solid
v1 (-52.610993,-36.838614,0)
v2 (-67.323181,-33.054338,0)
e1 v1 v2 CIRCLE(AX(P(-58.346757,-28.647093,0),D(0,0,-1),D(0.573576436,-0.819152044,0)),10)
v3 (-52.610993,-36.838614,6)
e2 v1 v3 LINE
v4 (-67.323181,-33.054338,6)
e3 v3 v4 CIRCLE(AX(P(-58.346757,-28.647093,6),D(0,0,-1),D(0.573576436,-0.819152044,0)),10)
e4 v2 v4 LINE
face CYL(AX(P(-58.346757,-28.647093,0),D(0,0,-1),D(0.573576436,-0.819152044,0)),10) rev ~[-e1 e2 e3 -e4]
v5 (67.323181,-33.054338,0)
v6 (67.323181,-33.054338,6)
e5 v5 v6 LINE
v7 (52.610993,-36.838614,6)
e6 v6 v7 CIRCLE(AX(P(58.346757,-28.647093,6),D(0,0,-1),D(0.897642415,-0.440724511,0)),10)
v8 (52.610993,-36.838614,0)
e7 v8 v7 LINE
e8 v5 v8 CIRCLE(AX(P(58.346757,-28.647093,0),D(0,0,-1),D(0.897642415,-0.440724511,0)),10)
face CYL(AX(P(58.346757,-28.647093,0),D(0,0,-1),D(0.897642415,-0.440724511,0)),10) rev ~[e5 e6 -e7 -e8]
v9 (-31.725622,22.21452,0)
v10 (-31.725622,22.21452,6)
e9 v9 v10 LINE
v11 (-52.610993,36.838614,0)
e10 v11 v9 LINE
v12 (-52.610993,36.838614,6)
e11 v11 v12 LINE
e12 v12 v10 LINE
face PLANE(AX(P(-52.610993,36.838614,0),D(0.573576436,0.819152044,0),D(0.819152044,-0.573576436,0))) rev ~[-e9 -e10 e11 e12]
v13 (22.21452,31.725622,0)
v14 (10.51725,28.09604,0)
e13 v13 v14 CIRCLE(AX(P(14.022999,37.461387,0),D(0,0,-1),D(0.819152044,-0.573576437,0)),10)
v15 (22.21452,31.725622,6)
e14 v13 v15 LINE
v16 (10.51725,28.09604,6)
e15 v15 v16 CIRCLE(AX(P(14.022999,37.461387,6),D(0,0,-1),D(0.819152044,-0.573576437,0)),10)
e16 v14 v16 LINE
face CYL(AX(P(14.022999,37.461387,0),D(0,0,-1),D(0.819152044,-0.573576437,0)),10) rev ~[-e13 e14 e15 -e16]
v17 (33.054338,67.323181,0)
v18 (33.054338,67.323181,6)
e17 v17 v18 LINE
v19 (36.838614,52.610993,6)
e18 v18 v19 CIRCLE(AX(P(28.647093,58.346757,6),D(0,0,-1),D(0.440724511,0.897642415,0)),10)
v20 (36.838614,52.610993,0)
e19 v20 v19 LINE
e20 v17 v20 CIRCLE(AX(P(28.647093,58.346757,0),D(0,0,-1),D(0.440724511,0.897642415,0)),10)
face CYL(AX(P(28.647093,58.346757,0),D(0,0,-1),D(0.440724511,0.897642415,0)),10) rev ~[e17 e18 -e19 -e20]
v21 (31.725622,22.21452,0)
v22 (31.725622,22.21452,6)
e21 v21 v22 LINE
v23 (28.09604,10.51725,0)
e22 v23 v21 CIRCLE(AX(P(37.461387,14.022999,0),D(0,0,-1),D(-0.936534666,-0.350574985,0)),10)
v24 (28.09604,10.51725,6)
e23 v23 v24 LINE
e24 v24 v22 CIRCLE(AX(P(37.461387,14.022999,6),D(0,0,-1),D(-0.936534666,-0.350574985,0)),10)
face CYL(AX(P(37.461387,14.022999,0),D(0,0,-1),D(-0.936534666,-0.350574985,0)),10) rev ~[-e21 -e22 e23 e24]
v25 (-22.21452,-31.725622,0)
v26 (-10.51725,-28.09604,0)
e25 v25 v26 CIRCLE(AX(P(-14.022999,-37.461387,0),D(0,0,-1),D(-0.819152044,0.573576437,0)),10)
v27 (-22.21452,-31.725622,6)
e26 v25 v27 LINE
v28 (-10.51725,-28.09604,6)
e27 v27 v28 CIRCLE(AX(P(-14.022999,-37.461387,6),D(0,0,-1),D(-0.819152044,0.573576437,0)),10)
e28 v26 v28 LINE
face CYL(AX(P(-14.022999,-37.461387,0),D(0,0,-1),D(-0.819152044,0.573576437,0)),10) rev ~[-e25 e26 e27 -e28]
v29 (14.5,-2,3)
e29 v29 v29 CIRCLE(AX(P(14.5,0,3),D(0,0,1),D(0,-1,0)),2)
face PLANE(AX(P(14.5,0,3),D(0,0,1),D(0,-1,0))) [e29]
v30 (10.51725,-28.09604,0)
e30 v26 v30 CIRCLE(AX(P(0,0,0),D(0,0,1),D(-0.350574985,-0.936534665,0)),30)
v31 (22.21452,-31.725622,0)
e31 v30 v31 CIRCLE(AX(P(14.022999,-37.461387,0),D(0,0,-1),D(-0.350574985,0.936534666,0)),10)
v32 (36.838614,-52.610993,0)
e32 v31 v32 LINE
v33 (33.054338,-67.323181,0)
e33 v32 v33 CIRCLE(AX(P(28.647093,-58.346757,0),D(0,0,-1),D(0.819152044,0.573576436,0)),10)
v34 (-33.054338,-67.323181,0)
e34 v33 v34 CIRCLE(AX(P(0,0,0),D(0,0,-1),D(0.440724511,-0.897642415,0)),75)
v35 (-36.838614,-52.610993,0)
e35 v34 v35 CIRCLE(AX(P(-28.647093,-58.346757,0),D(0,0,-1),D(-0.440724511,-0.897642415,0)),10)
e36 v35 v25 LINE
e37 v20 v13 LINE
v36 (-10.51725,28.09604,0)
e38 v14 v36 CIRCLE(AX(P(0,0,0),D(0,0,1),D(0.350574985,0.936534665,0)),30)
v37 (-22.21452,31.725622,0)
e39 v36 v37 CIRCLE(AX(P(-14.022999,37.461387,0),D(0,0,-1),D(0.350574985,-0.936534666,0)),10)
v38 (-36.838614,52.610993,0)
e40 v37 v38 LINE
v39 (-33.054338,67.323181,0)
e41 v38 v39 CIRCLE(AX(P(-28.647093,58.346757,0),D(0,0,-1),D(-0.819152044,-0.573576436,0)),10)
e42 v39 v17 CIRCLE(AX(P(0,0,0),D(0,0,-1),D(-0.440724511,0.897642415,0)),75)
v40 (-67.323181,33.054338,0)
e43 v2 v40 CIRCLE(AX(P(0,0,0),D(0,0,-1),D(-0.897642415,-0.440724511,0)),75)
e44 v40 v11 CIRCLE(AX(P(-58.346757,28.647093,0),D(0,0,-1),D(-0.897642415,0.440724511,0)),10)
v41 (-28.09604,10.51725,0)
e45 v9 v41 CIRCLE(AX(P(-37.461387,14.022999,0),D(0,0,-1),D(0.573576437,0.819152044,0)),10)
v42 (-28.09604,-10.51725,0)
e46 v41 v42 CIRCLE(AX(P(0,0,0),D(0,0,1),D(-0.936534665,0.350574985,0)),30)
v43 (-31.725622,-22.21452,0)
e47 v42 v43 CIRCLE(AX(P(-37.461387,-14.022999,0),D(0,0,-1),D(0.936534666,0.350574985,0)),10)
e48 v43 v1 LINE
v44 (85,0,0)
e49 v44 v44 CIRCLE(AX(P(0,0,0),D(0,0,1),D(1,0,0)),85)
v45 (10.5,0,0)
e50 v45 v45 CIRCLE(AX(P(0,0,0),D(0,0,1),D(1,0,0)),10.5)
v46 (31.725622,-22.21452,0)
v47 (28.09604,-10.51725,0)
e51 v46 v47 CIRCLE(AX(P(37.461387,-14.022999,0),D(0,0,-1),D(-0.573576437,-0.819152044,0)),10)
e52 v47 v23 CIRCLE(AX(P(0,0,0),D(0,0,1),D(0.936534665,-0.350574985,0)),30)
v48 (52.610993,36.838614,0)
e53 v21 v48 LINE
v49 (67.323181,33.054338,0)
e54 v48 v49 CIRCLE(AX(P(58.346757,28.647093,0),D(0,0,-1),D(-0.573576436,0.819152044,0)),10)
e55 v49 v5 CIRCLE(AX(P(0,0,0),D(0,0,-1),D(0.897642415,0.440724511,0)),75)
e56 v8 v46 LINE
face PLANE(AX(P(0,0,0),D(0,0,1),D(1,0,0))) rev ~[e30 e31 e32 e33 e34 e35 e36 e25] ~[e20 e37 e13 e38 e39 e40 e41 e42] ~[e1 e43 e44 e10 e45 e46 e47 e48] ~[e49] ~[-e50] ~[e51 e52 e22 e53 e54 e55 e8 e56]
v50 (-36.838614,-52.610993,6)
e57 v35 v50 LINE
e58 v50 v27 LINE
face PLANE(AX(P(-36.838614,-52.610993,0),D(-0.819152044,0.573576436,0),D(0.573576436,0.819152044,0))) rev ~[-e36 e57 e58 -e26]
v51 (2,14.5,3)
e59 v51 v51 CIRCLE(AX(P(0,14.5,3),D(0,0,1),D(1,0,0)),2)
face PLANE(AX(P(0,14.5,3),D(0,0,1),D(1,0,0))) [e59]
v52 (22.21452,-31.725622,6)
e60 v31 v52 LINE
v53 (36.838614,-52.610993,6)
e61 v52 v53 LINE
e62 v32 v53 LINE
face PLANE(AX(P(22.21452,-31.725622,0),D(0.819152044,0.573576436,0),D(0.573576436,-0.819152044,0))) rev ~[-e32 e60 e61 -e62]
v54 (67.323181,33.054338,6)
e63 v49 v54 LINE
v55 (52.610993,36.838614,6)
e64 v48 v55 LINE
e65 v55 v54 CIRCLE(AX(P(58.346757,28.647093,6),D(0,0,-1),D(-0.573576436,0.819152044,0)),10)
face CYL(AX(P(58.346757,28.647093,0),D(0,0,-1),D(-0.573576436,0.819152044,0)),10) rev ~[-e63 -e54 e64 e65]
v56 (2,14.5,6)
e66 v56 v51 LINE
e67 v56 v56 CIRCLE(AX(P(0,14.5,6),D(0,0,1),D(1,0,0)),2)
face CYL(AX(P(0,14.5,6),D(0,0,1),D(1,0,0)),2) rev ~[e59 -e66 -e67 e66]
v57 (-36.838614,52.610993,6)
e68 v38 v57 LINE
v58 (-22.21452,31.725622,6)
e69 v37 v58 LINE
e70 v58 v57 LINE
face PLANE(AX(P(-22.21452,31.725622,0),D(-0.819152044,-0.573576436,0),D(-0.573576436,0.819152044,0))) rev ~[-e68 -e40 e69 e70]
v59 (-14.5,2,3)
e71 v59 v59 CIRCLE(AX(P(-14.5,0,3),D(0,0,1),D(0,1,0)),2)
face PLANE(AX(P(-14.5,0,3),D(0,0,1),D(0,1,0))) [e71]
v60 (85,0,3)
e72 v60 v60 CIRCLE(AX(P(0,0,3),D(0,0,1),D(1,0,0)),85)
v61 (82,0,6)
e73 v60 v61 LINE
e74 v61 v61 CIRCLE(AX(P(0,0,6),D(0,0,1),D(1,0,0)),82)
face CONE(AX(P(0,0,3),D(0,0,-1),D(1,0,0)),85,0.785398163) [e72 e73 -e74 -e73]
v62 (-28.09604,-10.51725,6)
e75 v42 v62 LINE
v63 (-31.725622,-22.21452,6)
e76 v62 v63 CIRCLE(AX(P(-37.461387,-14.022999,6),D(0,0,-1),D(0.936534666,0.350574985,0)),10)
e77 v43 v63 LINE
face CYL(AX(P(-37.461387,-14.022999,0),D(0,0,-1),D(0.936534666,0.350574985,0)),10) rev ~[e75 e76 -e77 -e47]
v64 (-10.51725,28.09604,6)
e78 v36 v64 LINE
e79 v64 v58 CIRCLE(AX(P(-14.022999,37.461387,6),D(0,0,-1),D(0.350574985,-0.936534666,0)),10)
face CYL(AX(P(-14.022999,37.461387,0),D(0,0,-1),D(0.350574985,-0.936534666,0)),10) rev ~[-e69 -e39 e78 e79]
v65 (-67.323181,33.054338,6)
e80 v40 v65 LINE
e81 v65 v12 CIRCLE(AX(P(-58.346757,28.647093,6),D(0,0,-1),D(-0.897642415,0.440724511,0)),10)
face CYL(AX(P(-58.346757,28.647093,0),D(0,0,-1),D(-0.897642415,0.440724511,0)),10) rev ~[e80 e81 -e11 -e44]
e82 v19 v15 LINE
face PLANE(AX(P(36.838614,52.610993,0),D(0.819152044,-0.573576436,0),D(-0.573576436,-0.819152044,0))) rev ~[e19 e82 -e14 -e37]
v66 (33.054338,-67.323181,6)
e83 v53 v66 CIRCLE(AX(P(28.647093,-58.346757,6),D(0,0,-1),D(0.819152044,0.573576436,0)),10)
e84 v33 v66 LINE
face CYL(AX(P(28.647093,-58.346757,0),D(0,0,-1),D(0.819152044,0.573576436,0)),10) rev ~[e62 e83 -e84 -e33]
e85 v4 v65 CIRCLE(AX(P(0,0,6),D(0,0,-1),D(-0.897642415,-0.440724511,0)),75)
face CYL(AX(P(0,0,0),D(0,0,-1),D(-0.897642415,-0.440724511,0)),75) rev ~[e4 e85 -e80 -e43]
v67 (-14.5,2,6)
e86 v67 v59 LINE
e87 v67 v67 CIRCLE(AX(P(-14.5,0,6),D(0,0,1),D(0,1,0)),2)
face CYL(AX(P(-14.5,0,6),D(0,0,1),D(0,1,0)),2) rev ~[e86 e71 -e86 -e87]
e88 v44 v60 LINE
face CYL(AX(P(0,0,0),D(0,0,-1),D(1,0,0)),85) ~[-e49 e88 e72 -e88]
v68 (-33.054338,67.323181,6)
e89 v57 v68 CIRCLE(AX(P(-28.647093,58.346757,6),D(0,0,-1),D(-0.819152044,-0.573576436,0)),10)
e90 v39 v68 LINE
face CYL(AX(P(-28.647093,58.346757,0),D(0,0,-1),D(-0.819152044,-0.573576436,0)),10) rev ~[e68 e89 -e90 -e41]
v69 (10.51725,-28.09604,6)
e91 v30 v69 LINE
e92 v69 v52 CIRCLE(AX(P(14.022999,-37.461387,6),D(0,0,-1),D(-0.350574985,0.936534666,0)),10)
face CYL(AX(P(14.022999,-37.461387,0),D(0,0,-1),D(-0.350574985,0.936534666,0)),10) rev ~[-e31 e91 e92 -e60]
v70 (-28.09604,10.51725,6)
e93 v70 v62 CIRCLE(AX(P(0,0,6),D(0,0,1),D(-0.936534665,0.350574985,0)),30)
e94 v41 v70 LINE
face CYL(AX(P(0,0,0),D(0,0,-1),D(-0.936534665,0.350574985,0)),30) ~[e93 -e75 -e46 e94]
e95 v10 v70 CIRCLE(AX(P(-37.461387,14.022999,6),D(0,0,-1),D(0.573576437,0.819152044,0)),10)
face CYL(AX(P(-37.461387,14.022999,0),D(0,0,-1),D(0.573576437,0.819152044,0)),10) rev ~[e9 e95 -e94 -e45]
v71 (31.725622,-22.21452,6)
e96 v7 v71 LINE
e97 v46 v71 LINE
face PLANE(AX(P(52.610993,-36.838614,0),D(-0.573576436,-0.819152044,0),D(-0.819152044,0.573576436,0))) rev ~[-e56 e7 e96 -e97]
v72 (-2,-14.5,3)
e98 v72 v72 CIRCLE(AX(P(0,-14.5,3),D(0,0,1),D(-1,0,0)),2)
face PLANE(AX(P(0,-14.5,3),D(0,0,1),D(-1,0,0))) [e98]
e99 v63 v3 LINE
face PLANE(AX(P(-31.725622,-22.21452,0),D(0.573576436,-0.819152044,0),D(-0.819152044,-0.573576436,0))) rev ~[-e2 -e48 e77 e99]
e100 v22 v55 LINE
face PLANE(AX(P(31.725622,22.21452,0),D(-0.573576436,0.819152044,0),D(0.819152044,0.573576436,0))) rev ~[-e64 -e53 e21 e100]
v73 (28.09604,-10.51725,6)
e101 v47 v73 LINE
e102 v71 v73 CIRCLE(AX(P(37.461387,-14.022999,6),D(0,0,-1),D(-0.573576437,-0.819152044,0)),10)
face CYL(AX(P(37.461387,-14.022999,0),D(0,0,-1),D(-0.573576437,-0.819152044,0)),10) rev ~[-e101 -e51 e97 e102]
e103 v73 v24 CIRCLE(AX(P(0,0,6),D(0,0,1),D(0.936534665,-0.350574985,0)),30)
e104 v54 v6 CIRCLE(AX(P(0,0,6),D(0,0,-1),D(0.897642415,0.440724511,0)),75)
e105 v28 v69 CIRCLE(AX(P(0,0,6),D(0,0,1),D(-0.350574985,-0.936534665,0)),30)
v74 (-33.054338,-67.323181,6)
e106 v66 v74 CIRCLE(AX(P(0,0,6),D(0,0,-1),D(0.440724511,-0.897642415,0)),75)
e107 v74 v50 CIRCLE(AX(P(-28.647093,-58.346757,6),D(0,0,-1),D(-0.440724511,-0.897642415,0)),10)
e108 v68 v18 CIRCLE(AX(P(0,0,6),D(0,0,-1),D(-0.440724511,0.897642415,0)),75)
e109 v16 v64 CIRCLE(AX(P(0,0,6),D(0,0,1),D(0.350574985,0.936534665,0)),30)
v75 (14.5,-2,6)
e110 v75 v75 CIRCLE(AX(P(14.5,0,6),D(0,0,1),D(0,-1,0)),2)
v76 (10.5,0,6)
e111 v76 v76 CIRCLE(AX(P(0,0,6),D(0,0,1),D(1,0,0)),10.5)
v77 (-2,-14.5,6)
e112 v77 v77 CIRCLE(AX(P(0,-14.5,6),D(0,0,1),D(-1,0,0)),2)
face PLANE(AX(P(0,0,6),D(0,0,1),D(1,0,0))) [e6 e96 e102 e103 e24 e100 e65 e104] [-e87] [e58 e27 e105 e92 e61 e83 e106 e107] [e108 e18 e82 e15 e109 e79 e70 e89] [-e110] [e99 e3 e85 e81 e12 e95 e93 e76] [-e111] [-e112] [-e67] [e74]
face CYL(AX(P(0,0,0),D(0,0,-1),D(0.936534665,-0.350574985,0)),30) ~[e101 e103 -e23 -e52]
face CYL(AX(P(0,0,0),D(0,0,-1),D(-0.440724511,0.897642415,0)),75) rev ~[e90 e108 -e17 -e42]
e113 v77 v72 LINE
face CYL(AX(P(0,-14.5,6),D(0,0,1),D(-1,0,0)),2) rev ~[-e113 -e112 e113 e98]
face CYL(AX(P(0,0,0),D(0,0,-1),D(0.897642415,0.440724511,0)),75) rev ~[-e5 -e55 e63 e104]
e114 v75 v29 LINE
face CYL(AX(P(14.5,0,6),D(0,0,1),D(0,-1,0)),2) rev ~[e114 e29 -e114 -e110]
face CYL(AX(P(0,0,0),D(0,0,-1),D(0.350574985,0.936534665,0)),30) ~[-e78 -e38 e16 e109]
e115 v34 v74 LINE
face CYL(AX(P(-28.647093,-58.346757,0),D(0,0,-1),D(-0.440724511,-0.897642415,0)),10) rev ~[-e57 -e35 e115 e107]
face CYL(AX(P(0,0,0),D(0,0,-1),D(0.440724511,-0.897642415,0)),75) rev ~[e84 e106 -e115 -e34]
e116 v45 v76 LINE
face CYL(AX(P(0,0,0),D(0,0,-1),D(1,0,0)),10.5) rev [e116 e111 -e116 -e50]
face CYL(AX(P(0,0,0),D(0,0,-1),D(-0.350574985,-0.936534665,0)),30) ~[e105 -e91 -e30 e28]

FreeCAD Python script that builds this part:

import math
import FreeCAD as App
import Part
import Sketcher
from FreeCAD import Vector
Q = App.Units.Quantity


def edges_at(feature, points):
    """Names of the edges that pass closest to the given points."""
    edges = feature.Shape.Edges
    near = lambda p: min(range(len(edges)), key=lambda i: edges[i].distToShape(Part.Vertex(*p))[0])
    return sorted({f"Edge{near(p) + 1}" for p in points})

doc = App.newDocument("Part")
body = doc.addObject("PartDesign::Body", "Body")

sketch1 = doc.addObject("Sketcher::SketchObject", "Sketch")
body.addObject(sketch1)
sketch1.AttachmentSupport = (doc.XY_Plane, [""])
sketch1.MapMode = "FlatFace"
sketch1.addGeometry([
    Part.Circle(Vector(0, 0, 0), Vector(0, 0, 1), 85),
    Part.ArcOfCircle(Part.Circle(Vector(14.022999, -37.461387, 0), Vector(0, 0, 1), 10), math.radians(35), math.radians(110.522488)),
    Part.LineSegment(Vector(22.21452, -31.725622, 0), Vector(36.838614, -52.610993, 0)),
    Part.ArcOfCircle(Part.Circle(Vector(28.647093, -58.346757, 0), Vector(0, 0, 1), 10), math.radians(-63.849883), math.radians(35)),
    Part.ArcOfCircle(Part.Circle(Vector(0, 0, 0), Vector(0, 0, 1), 75), math.radians(-116.150117), math.radians(-63.849883)),
    Part.ArcOfCircle(Part.Circle(Vector(-28.647093, -58.346757, 0), Vector(0, 0, 1), 10), math.radians(145), math.radians(243.849883)),
    Part.LineSegment(Vector(-36.838614, -52.610993, 0), Vector(-22.21452, -31.725622, 0)),
    Part.ArcOfCircle(Part.Circle(Vector(-14.022999, -37.461387, 0), Vector(0, 0, 1), 10), math.radians(69.477512), math.radians(145)),
    Part.ArcOfCircle(Part.Circle(Vector(0, 0, 0), Vector(0, 0, 1), 30), math.radians(-110.522488), math.radians(-69.477512)),
    Part.ArcOfCircle(Part.Circle(Vector(-37.461387, -14.022999, 0), Vector(0, 0, 1), 10), math.radians(-55), math.radians(20.522488)),
    Part.LineSegment(Vector(-31.725622, -22.21452, 0), Vector(-52.610993, -36.838614, 0)),
    Part.ArcOfCircle(Part.Circle(Vector(-58.346757, -28.647093, 0), Vector(0, 0, 1), 10), math.radians(-153.849883), math.radians(-55)),
    Part.ArcOfCircle(Part.Circle(Vector(0, 0, 0), Vector(0, 0, 1), 75), math.radians(153.849883), math.radians(206.150117)),
    Part.ArcOfCircle(Part.Circle(Vector(-58.346757, 28.647093, 0), Vector(0, 0, 1), 10), math.radians(55), math.radians(153.849883)),
    Part.LineSegment(Vector(-52.610993, 36.838614, 0), Vector(-31.725622, 22.21452, 0)),
    Part.ArcOfCircle(Part.Circle(Vector(-37.461387, 14.022999, 0), Vector(0, 0, 1), 10), math.radians(-20.522488), math.radians(55)),
    Part.ArcOfCircle(Part.Circle(Vector(0, 0, 0), Vector(0, 0, 1), 30), math.radians(159.477512), math.radians(200.522488)),
    Part.Circle(Vector(0, 0, 0), Vector(0, 0, 1), 10.5),
    Part.ArcOfCircle(Part.Circle(Vector(37.461387, 14.022999, 0), Vector(0, 0, 1), 10), math.radians(125), math.radians(200.522488)),
    Part.LineSegment(Vector(31.725622, 22.21452, 0), Vector(52.610993, 36.838614, 0)),
    Part.ArcOfCircle(Part.Circle(Vector(58.346757, 28.647093, 0), Vector(0, 0, 1), 10), math.radians(26.150117), math.radians(125)),
    Part.ArcOfCircle(Part.Circle(Vector(0, 0, 0), Vector(0, 0, 1), 75), math.radians(-26.150117), math.radians(26.150117)),
    Part.ArcOfCircle(Part.Circle(Vector(58.346757, -28.647093, 0), Vector(0, 0, 1), 10), math.radians(-125), math.radians(-26.150117)),
    Part.LineSegment(Vector(52.610993, -36.838614, 0), Vector(31.725622, -22.21452, 0)),
    Part.ArcOfCircle(Part.Circle(Vector(37.461387, -14.022999, 0), Vector(0, 0, 1), 10), math.radians(159.477512), math.radians(235)),
    Part.ArcOfCircle(Part.Circle(Vector(0, 0, 0), Vector(0, 0, 1), 30), math.radians(-20.522488), math.radians(20.522488)),
    Part.ArcOfCircle(Part.Circle(Vector(28.647093, 58.346757, 0), Vector(0, 0, 1), 10), math.radians(-35), math.radians(63.849883)),
    Part.LineSegment(Vector(36.838614, 52.610993, 0), Vector(22.21452, 31.725622, 0)),
    Part.ArcOfCircle(Part.Circle(Vector(14.022999, 37.461387, 0), Vector(0, 0, 1), 10), math.radians(-110.522488), math.radians(-35)),
    Part.ArcOfCircle(Part.Circle(Vector(0, 0, 0), Vector(0, 0, 1), 30), math.radians(69.477512), math.radians(110.522488)),
    Part.ArcOfCircle(Part.Circle(Vector(-14.022999, 37.461387, 0), Vector(0, 0, 1), 10), math.radians(-145), math.radians(-69.477512)),
    Part.LineSegment(Vector(-22.21452, 31.725622, 0), Vector(-36.838614, 52.610993, 0)),
    Part.ArcOfCircle(Part.Circle(Vector(-28.647093, 58.346757, 0), Vector(0, 0, 1), 10), math.radians(116.150117), math.radians(215)),
    Part.ArcOfCircle(Part.Circle(Vector(0, 0, 0), Vector(0, 0, 1), 75), math.radians(63.849883), math.radians(116.150117)),
], False)
sketch1.addConstraint([
    Sketcher.Constraint("Tangent", 1, 1, 2, 1),
    Sketcher.Constraint("Tangent", 2, 2, 3, 2),
    Sketcher.Constraint("Tangent", 3, 1, 4, 2),
    Sketcher.Constraint("Tangent", 4, 1, 5, 2),
    Sketcher.Constraint("Tangent", 5, 1, 6, 1),
    Sketcher.Constraint("Tangent", 6, 2, 7, 2),
    Sketcher.Constraint("Tangent", 7, 1, 8, 1),
    Sketcher.Constraint("Tangent", 8, 2, 1, 2),
    Sketcher.Constraint("Tangent", 9, 1, 10, 1),
    Sketcher.Constraint("Tangent", 10, 2, 11, 2),
    Sketcher.Constraint("Tangent", 11, 1, 12, 2),
    Sketcher.Constraint("Tangent", 12, 1, 13, 2),
    Sketcher.Constraint("Tangent", 13, 1, 14, 1),
    Sketcher.Constraint("Tangent", 14, 2, 15, 2),
    Sketcher.Constraint("Tangent", 15, 1, 16, 1),
    Sketcher.Constraint("Tangent", 16, 2, 9, 2),
    Sketcher.Constraint("Tangent", 18, 1, 19, 1),
    Sketcher.Constraint("Tangent", 19, 2, 20, 2),
    Sketcher.Constraint("Tangent", 20, 1, 21, 2),
    Sketcher.Constraint("Tangent", 21, 1, 22, 2),
    Sketcher.Constraint("Tangent", 22, 1, 23, 1),
    Sketcher.Constraint("Tangent", 23, 2, 24, 2),
    Sketcher.Constraint("Tangent", 24, 1, 25, 1),
    Sketcher.Constraint("Tangent", 25, 2, 18, 2),
    Sketcher.Constraint("Tangent", 26, 1, 27, 1),
    Sketcher.Constraint("Tangent", 27, 2, 28, 2),
    Sketcher.Constraint("Tangent", 28, 1, 29, 1),
    Sketcher.Constraint("Tangent", 29, 2, 30, 2),
    Sketcher.Constraint("Tangent", 30, 1, 31, 1),
    Sketcher.Constraint("Tangent", 31, 2, 32, 2),
    Sketcher.Constraint("Tangent", 32, 1, 33, 2),
    Sketcher.Constraint("Tangent", 33, 1, 26, 2),
    Sketcher.Constraint("Coincident", 0, 3, -1, 1),
    Sketcher.Constraint("Coincident", 4, 3, -1, 1),
    Sketcher.Constraint("Coincident", 8, 3, -1, 1),
    Sketcher.Constraint("Coincident", 12, 3, -1, 1),
    Sketcher.Constraint("Coincident", 16, 3, -1, 1),
    Sketcher.Constraint("Coincident", 17, 3, -1, 1),
    Sketcher.Constraint("Coincident", 21, 3, -1, 1),
    Sketcher.Constraint("Coincident", 25, 3, -1, 1),
    Sketcher.Constraint("Coincident", 29, 3, -1, 1),
    Sketcher.Constraint("Coincident", 33, 3, -1, 1),
    Sketcher.Constraint("Equal", 1, 3),
    Sketcher.Constraint("Equal", 3, 5),
    Sketcher.Constraint("Equal", 5, 7),
    Sketcher.Constraint("Equal", 7, 9),
    Sketcher.Constraint("Equal", 9, 11),
    Sketcher.Constraint("Equal", 4, 12),
    Sketcher.Constraint("Equal", 11, 13),
    Sketcher.Constraint("Equal", 13, 15),
    Sketcher.Constraint("Equal", 8, 16),
    Sketcher.Constraint("Equal", 15, 18),
    Sketcher.Constraint("Equal", 18, 20),
    Sketcher.Constraint("Equal", 12, 21),
    Sketcher.Constraint("Equal", 20, 22),
    Sketcher.Constraint("Equal", 22, 24),
    Sketcher.Constraint("Equal", 16, 25),
    Sketcher.Constraint("Equal", 24, 26),
    Sketcher.Constraint("Equal", 26, 28),
    Sketcher.Constraint("Equal", 25, 29),
    Sketcher.Constraint("Equal", 28, 30),
    Sketcher.Constraint("Equal", 30, 32),
    Sketcher.Constraint("Equal", 21, 33),
    Sketcher.Constraint("Symmetric", 9, 1, 18, 1, -1, 1),
    Sketcher.Constraint("Symmetric", 13, 1, 22, 1, -1, 1),
    Sketcher.Constraint("Symmetric", 5, 1, 26, 1, -1, 1),
    Sketcher.Constraint("Symmetric", 1, 1, 30, 1, -1, 1),
    Sketcher.Constraint("Symmetric", 2, 2, 5, 1, -2),
    Sketcher.Constraint("Symmetric", 14, 2, 18, 1, -2),
    Sketcher.Constraint("Perpendicular", 2, 10),
    Sketcher.Constraint("Equal", 6, 10),
    Sketcher.Constraint("Diameter", 0, Q("170 mm")),
    Sketcher.Constraint("Diameter", 17, Q("21 mm")),
    Sketcher.Constraint("Radius", 1, Q("10 mm")),
    Sketcher.Constraint("Radius", 4, Q("75 mm")),
    Sketcher.Constraint("Radius", 8, Q("30 mm")),
    Sketcher.Constraint("Angle", 2, Q("-55 deg")),
    Sketcher.Constraint("DistanceX", -1, 1, 1, 3, Q("14.022999 mm")),
])
pad1 = doc.addObject("PartDesign::Pad", "Pad")
body.addObject(pad1)
pad1.Profile = sketch1
pad1.Length = 6

sketch2 = doc.addObject("Sketcher::SketchObject", "Sketch001")
body.addObject(sketch2)
sketch2.AttachmentSupport = (doc.XY_Plane, [""])
sketch2.MapMode = "FlatFace"
sketch2.AttachmentOffset = App.Placement(Vector(0, 0, 6), App.Rotation())
sketch2.addGeometry(Part.Circle(Vector(0, 14.5, 0), Vector(0, 0, 1), 2), False)
sketch2.addConstraint([
    Sketcher.Constraint("PointOnObject", 0, 3, -2),
    Sketcher.Constraint("Diameter", 0, Q("4 mm")),
    Sketcher.Constraint("DistanceY", -1, 1, 0, 3, Q("14.5 mm")),
])
pocket1 = doc.addObject("PartDesign::Pocket", "Pocket")
body.addObject(pocket1)
pocket1.Profile = sketch2
pocket1.Length = 3
doc.recompute()

polarpattern = doc.addObject("PartDesign::PolarPattern", "PolarPattern")
body.addObject(polarpattern)
polarpattern.Originals = [pocket1]
polarpattern.Axis = (doc.Z_Axis, [""])
polarpattern.Angle = 360
polarpattern.Occurrences = 4
body.Tip = polarpattern
doc.recompute()

chamfer = doc.addObject("PartDesign::Chamfer", "Chamfer")
body.addObject(chamfer)
chamfer.Base = (polarpattern, edges_at(polarpattern, [(-85, 0, 6)]))
chamfer.Size = 3

doc.recompute()
